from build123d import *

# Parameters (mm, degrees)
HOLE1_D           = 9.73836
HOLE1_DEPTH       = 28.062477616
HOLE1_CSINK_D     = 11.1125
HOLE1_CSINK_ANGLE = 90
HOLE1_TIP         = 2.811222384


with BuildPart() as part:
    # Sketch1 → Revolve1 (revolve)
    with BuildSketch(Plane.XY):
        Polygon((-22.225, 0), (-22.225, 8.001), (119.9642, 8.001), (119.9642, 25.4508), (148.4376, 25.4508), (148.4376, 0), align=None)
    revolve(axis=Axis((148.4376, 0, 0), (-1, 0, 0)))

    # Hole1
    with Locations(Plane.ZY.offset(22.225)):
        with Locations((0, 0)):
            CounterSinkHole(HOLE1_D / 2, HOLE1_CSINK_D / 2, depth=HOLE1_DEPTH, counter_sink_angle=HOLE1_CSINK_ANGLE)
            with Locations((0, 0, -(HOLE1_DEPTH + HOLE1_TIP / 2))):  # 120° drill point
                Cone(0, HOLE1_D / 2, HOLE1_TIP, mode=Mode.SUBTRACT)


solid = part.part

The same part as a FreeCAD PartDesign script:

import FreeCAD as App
import Part
import Sketcher
Q = App.Units.Quantity


def add_polygon(sketch, points):
    """Adds a closed chain of lines whose ends are joined by coincident constraints."""
    first, n = sketch.GeometryCount, len(points)
    for a, b in zip(points, points[1:] + points[:1]):
        sketch.addGeometry(Part.LineSegment(App.Vector(*a, 0), App.Vector(*b, 0)), False)
    for i in range(n):
        sketch.addConstraint(Sketcher.Constraint("Coincident", first + i, 2, first + (i + 1) % n, 1))

doc = App.newDocument("Part")
body = doc.addObject("PartDesign::Body", "Body")

sketch1 = body.newObject("Sketcher::SketchObject", "Sketch")
sketch1.AttachmentSupport = (doc.getObject("XY_Plane"), [""])
sketch1.MapMode = "FlatFace"
add_polygon(sketch1, [(-22, 8), (-22, 0), (148, 0), (148, 25), (120, 25), (120, 8)])
sketch1.addConstraint([
    Sketcher.Constraint("Vertical", 0),
    Sketcher.Constraint("Horizontal", 1),
    Sketcher.Constraint("Vertical", 2),
    Sketcher.Constraint("Horizontal", 3),
    Sketcher.Constraint("Vertical", 4),
    Sketcher.Constraint("Horizontal", 5),
    Sketcher.Constraint("PointOnObject", 0, 2, -1),
    Sketcher.Constraint("DistanceX", 1, 1, 1, 2, Q("6.719 in")),
    Sketcher.Constraint("DistanceX", 3, 2, 3, 1, Q("1.121 in")),
    Sketcher.Constraint("DistanceY", 0, 2, 0, 1, Q("0.315 in")),
    Sketcher.Constraint("DistanceY", 2, 1, 2, 2, Q("1.002 in")),
    Sketcher.Constraint("DistanceX", 0, 2, -1, 1, Q("0.875 in")),
])
revolution = body.newObject("PartDesign::Revolution", "Revolution")
revolution.Profile = sketch1
revolution.ReferenceAxis = (sketch1, ["H_Axis"])
revolution.Angle = 360

sketch2 = body.newObject("Sketcher::SketchObject", "Sketch001")
sketch2.AttachmentSupport = (doc.getObject("YZ_Plane"), [""])
sketch2.MapMode = "FlatFace"
sketch2.AttachmentOffset = App.Placement(App.Vector(0, 0, -0.875 * 25.4), App.Rotation())
sketch2.addGeometry(Part.Circle(App.Vector(0, 0, 0), App.Vector(0, 0, 1), 4.9), False)
sketch2.addConstraint([
    Sketcher.Constraint("Coincident", 0, 3, -1, 1),
    Sketcher.Constraint("Diameter", 0, Q("0.3834 in")),
])
doc.recompute()
hole = body.newObject("PartDesign::Hole", "Hole")
hole.Profile = sketch2
hole.ThreadType = "None"
hole.Diameter = Q("0.3834 in")
hole.DepthType = "Dimension"
hole.Depth = 28.062478
hole.DrillPoint = "Angled"
hole.DrillPointAngle = 120
hole.HoleCutType = "Countersink"
hole.HoleCutDiameter = Q("0.4375 in")
hole.HoleCutCountersinkAngle = 90
hole.Reversed = True

doc.recompute()
